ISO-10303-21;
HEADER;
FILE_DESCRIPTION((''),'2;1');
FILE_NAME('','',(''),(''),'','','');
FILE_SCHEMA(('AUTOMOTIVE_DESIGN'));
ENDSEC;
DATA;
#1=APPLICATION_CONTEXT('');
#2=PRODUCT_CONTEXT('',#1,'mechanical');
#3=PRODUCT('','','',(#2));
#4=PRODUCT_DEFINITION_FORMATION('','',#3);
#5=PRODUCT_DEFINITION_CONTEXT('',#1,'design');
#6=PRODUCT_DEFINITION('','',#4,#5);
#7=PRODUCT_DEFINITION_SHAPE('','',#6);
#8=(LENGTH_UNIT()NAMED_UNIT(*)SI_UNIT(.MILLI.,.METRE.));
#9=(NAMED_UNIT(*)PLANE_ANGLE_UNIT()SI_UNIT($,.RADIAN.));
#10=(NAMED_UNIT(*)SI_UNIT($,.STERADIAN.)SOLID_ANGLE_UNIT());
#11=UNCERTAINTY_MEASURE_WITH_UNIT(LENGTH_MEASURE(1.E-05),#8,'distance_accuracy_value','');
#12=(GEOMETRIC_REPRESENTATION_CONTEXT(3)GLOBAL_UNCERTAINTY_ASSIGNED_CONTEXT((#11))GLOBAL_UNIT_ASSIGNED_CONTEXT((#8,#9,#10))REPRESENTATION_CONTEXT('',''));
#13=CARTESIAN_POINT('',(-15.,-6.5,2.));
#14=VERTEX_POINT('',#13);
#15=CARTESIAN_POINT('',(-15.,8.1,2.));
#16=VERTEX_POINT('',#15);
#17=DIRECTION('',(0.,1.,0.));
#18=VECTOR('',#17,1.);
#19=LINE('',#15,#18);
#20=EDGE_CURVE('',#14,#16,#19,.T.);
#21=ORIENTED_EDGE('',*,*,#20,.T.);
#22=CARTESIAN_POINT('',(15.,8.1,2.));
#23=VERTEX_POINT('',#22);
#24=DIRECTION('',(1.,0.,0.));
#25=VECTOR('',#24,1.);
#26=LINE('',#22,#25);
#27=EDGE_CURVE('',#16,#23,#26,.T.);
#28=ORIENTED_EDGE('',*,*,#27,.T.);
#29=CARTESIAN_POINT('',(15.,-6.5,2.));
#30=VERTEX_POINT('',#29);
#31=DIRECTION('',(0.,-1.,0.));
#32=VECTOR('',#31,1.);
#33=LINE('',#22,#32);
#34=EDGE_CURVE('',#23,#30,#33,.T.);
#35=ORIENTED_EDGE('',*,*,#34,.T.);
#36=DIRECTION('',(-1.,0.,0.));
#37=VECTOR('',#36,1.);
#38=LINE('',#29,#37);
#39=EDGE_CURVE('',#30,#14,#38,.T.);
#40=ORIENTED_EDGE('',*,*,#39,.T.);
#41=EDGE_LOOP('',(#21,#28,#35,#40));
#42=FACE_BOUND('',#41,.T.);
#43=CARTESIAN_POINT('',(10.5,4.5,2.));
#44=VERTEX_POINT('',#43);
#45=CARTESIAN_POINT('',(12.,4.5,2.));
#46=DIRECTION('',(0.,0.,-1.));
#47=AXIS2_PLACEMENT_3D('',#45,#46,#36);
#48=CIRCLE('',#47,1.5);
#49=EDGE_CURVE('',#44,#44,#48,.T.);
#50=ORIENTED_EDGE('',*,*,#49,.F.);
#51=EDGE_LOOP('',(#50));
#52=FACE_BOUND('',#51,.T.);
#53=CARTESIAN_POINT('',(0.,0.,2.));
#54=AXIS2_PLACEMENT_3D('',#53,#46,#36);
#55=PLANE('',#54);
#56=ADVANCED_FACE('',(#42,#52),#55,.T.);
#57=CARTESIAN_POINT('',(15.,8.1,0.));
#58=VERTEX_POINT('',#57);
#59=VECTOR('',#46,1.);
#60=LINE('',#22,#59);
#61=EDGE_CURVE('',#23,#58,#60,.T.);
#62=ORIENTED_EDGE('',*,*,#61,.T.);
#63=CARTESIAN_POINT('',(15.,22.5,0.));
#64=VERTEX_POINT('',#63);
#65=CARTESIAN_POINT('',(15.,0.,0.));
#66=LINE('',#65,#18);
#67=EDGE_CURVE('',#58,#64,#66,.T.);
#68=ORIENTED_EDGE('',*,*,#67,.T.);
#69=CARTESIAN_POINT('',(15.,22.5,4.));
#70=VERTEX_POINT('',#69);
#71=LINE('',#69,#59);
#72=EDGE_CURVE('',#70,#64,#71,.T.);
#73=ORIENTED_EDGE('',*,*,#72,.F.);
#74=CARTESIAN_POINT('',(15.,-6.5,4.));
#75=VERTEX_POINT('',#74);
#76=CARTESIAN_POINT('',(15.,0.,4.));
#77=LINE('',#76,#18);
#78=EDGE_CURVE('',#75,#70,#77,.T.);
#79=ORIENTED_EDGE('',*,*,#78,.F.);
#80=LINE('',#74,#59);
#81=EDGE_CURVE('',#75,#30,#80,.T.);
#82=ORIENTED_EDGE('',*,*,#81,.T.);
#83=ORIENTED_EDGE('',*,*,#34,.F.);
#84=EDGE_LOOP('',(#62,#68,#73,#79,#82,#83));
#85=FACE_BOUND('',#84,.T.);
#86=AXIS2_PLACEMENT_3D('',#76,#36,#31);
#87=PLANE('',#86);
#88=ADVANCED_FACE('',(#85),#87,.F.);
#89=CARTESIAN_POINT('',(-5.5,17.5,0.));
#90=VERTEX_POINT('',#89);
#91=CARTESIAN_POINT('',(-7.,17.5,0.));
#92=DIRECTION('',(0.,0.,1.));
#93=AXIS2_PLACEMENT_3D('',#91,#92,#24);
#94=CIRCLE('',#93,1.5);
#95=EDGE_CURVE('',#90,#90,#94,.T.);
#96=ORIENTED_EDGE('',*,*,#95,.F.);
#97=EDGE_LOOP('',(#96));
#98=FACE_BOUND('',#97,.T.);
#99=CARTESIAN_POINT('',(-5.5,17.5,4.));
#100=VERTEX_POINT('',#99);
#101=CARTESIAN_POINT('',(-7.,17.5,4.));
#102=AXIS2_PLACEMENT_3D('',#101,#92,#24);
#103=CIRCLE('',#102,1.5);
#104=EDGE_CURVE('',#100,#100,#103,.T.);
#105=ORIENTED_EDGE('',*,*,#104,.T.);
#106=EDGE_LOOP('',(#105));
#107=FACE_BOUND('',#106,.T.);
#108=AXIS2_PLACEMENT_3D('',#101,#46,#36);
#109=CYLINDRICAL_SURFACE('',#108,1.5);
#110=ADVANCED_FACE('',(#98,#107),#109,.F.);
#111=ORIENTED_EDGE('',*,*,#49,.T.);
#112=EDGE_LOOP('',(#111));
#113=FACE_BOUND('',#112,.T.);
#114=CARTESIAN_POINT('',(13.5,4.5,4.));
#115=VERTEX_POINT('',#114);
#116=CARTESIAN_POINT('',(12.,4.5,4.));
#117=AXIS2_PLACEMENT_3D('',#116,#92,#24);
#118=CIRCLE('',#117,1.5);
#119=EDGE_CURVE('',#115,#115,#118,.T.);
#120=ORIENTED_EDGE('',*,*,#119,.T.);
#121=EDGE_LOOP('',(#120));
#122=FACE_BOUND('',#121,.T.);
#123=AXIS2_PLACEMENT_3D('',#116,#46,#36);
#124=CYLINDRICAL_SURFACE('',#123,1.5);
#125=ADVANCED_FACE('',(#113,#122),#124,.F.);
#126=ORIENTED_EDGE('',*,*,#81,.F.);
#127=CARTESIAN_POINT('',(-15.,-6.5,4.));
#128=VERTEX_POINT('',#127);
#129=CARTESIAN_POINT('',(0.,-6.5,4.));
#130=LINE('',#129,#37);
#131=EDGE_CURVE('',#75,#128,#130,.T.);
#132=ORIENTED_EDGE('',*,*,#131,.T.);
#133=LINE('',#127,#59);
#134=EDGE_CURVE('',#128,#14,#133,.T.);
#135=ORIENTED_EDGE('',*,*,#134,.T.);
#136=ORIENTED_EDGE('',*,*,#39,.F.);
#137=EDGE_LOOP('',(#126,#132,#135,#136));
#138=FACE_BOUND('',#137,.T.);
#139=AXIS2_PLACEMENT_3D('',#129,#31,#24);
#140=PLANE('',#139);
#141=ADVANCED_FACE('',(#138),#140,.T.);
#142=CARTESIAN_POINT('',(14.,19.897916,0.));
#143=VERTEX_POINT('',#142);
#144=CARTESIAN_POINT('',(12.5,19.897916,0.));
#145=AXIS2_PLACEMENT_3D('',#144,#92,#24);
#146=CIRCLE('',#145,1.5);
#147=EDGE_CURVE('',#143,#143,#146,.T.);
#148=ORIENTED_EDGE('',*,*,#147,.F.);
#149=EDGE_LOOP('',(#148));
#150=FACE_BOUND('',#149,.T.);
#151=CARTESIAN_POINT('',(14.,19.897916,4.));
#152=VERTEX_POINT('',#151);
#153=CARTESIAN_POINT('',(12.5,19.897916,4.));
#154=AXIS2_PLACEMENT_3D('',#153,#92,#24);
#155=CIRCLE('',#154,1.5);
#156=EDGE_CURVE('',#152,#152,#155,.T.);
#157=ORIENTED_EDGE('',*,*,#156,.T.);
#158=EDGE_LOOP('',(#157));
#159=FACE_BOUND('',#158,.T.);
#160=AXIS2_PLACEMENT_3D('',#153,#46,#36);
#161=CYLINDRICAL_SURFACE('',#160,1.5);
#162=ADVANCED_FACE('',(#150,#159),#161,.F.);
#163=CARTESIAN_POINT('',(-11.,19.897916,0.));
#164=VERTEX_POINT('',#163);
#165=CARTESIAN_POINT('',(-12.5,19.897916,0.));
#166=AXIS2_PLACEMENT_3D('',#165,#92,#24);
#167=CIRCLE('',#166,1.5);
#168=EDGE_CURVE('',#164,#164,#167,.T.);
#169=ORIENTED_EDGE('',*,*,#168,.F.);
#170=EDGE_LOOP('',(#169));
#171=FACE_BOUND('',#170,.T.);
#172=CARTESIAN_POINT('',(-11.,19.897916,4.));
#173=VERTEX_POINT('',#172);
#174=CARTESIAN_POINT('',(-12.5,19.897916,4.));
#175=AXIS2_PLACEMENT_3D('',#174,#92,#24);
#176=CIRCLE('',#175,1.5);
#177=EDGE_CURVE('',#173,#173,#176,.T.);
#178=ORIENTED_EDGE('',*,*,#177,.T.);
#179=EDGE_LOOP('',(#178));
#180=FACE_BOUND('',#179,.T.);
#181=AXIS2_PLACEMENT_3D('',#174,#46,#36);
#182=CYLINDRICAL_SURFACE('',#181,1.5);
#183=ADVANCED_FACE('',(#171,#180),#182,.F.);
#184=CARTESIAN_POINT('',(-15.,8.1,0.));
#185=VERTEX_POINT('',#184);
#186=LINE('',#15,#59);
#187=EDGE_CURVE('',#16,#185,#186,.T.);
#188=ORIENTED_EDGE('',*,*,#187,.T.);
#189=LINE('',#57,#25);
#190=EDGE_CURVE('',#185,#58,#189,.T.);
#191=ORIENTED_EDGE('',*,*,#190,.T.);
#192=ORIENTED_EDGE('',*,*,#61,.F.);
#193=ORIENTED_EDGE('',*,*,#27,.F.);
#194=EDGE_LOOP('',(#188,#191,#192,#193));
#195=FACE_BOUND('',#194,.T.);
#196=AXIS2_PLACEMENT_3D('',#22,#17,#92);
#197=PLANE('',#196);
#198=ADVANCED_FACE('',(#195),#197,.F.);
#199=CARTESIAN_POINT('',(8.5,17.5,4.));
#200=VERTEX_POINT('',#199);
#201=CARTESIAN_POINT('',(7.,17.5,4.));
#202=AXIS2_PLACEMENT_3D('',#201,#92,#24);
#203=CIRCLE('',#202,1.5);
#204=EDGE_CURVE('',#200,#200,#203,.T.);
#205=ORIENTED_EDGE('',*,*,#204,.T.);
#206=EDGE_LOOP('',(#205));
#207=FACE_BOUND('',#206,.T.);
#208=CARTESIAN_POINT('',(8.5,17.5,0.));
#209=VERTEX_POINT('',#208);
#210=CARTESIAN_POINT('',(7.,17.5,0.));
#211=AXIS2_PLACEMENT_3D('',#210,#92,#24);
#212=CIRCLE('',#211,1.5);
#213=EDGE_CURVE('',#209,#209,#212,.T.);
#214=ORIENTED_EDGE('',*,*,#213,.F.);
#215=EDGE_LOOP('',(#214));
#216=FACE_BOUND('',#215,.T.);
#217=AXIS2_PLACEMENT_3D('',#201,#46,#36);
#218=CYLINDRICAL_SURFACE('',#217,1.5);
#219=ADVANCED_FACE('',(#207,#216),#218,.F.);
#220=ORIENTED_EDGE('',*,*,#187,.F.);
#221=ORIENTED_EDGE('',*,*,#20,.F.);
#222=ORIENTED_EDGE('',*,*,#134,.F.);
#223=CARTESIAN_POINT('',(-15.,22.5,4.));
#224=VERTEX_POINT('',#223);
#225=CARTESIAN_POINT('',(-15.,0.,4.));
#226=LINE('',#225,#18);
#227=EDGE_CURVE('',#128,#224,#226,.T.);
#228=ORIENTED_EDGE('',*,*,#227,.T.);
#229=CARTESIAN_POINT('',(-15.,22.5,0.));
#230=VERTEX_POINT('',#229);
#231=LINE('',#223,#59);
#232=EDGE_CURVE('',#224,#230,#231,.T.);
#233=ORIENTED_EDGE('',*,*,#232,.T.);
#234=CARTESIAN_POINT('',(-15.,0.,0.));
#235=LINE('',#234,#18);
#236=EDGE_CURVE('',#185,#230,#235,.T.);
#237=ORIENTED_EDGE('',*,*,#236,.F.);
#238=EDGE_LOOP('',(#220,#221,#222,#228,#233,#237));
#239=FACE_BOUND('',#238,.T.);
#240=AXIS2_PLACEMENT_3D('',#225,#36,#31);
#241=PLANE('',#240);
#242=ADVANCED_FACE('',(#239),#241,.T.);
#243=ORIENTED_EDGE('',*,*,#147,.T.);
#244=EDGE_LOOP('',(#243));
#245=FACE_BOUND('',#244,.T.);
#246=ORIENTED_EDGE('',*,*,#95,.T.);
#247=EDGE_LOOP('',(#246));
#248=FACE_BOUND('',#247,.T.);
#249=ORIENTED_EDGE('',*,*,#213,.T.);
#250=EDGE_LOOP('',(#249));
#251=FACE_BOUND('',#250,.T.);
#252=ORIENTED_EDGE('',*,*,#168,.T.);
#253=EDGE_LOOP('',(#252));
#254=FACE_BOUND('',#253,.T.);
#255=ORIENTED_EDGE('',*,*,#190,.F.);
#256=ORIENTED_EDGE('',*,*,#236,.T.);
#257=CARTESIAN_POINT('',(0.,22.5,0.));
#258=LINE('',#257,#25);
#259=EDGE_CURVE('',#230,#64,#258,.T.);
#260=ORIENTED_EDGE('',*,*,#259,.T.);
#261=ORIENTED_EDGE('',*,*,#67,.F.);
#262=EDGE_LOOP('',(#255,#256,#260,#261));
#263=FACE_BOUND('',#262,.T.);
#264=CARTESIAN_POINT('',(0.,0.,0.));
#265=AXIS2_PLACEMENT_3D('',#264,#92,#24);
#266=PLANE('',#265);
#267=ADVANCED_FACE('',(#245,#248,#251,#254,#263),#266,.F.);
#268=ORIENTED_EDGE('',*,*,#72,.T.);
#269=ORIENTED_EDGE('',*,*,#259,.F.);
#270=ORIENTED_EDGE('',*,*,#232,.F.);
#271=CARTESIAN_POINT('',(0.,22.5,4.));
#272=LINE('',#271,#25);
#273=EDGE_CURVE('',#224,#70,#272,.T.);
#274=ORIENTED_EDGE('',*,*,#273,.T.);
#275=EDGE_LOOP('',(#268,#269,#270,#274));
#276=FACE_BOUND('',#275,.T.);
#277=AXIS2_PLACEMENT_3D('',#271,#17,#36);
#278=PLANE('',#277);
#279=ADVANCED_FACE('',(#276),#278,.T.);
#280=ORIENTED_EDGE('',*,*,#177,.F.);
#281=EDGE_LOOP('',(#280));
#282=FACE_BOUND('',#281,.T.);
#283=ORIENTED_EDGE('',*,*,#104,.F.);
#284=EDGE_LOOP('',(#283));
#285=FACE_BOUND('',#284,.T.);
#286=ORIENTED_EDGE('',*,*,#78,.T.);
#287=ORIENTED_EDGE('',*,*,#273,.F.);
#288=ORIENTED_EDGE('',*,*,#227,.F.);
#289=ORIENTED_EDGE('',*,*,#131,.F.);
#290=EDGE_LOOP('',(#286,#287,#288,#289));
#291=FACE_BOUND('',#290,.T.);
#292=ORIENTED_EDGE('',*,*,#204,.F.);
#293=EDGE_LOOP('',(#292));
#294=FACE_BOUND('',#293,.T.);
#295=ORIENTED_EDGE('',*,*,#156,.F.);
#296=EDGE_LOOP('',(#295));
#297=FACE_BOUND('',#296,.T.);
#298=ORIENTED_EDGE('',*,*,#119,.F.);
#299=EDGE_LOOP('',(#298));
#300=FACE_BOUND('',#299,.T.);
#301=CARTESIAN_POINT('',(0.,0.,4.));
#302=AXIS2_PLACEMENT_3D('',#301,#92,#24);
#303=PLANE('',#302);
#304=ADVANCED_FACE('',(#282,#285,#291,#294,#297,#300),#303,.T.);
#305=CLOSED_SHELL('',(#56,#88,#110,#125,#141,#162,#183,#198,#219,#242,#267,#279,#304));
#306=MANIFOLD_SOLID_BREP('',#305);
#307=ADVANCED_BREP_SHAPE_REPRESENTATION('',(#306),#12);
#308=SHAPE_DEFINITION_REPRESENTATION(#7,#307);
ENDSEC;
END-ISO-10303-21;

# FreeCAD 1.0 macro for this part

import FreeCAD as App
import Part
import Sketcher

V = App.Vector
Q = App.Units.Quantity

doc = App.newDocument("Part")
params = doc.addObject("Spreadsheet::Sheet", "Params")
for row, (alias, value) in enumerate([
    ("sketch1_diameter", "3 mm"),
    ("sketch1_width", "30 mm"),
    ("sketch1_height", "29 mm"),
    ("pad1_length", "4 mm"),
    ("sketch2_width", "30 mm"),
    ("sketch2_height", "14.6 mm"),
    ("pocket1_length", "2 mm"),
], start=1):
    params.set(f"A{row}", alias)
    params.set(f"B{row}", "=" + value)
    params.setAlias(f"B{row}", alias)

body = doc.addObject("PartDesign::Body", "Body")

sketch1 = body.newObject("Sketcher::SketchObject", "Sketch")
sketch1.AttachmentSupport = (doc.getObject("XY_Plane"), [""])
sketch1.MapMode = "FlatFace"
sketch1.addGeometry([
    Part.LineSegment(V(-15, 22.5, 0), V(-15, -6.5, 0)),
    Part.LineSegment(V(-15, -6.5, 0), V(15, -6.5, 0)),
    Part.LineSegment(V(15, -6.5, 0), V(15, 22.5, 0)),
    Part.LineSegment(V(15, 22.5, 0), V(-15, 22.5, 0)),
    Part.Circle(V(12, 4.5, 0), V(0, 0, 1), 1.5),
    Part.Circle(V(-12.5, 19.9, 0), V(0, 0, 1), 1.5),
    Part.Circle(V(-7, 17.5, 0), V(0, 0, 1), 1.5),
    Part.Circle(V(7, 17.5, 0), V(0, 0, 1), 1.5),
    Part.Circle(V(12.5, 19.9, 0), V(0, 0, 1), 1.5),
], False)
sketch1.addConstraint([
    Sketcher.Constraint("Coincident", 0, 2, 1, 1),
    Sketcher.Constraint("Coincident", 1, 2, 2, 1),
    Sketcher.Constraint("Coincident", 2, 2, 3, 1),
    Sketcher.Constraint("Coincident", 3, 2, 0, 1),
    Sketcher.Constraint("Vertical", 0),
    Sketcher.Constraint("Horizontal", 1),
    Sketcher.Constraint("Vertical", 2),
    Sketcher.Constraint("Horizontal", 3),
    Sketcher.Constraint("Equal", 4, 5),
    Sketcher.Constraint("Equal", 5, 6),
    Sketcher.Constraint("Equal", 6, 7),
    Sketcher.Constraint("Equal", 7, 8),
    Sketcher.Constraint("Symmetric", 6, 3, 7, 3, -2),
    Sketcher.Constraint("Symmetric", 5, 3, 8, 3, -2),
    Sketcher.Constraint("Diameter", 4, Q("3 mm")),
    Sketcher.Constraint("DistanceX", 1, 1, 1, 2, Q("30 mm")),
    Sketcher.Constraint("DistanceY", 0, 2, 0, 1, Q("29 mm")),
    Sketcher.Constraint("DistanceX", -1, 1, 4, 3, Q("12 mm")),
    Sketcher.Constraint("DistanceX", 6, 3, -1, 1, Q("7 mm")),
    Sketcher.Constraint("DistanceX", 0, 2, -1, 1, Q("15 mm")),
    Sketcher.Constraint("DistanceY", 4, 3, 6, 3, Q("13 mm")),
    Sketcher.Constraint("DistanceX", 5, 3, 8, 3, Q("25 mm")),
    Sketcher.Constraint("DistanceY", 0, 2, 6, 3, Q("24 mm")),
    Sketcher.Constraint("DistanceY", -1, 1, 4, 3, Q("4.5 mm")),
    Sketcher.Constraint("DistanceY", -1, 1, 5, 3, Q("19.897916 mm")),
])
sketch1.setExpression("Constraints[14]", "Params.sketch1_diameter")
sketch1.setExpression("Constraints[15]", "Params.sketch1_width")
sketch1.setExpression("Constraints[16]", "Params.sketch1_height")
pad1 = body.newObject("PartDesign::Pad", "Pad")
pad1.Profile = sketch1
pad1.setExpression("Length", "Params.pad1_length")

sketch2 = body.newObject("Sketcher::SketchObject", "Sketch001")
sketch2.AttachmentSupport = (doc.getObject("XY_Plane"), [""])
sketch2.MapMode = "FlatFace"
sketch2.addGeometry([
    Part.LineSegment(V(15, 8, 0), V(15, -6, 0)),
    Part.LineSegment(V(15, -6, 0), V(-15, -6, 0)),
    Part.LineSegment(V(-15, -6, 0), V(-15, 8, 0)),
    Part.LineSegment(V(-15, 8, 0), V(15, 8, 0)),
], False)
sketch2.addConstraint([
    Sketcher.Constraint("Coincident", 0, 2, 1, 1),
    Sketcher.Constraint("Coincident", 1, 2, 2, 1),
    Sketcher.Constraint("Coincident", 2, 2, 3, 1),
    Sketcher.Constraint("Coincident", 3, 2, 0, 1),
    Sketcher.Constraint("Vertical", 0),
    Sketcher.Constraint("Horizontal", 1),
    Sketcher.Constraint("Vertical", 2),
    Sketcher.Constraint("Horizontal", 3),
    Sketcher.Constraint("DistanceX", 1, 2, 1, 1, Q("30 mm")),
    Sketcher.Constraint("DistanceY", 0, 2, 0, 1, Q("14.6 mm")),
    Sketcher.Constraint("DistanceX", -1, 1, 0, 2, Q("15 mm")),
    Sketcher.Constraint("DistanceY", 0, 2, -1, 1, Q("6.5 mm")),
])
sketch2.setExpression("Constraints[8]", "Params.sketch2_width")
sketch2.setExpression("Constraints[9]", "Params.sketch2_height")
pocket1 = body.newObject("PartDesign::Pocket", "Pocket")
pocket1.Profile = sketch2
pocket1.setExpression("Length", "Params.pocket1_length")
pocket1.Reversed = True

doc.recompute()
